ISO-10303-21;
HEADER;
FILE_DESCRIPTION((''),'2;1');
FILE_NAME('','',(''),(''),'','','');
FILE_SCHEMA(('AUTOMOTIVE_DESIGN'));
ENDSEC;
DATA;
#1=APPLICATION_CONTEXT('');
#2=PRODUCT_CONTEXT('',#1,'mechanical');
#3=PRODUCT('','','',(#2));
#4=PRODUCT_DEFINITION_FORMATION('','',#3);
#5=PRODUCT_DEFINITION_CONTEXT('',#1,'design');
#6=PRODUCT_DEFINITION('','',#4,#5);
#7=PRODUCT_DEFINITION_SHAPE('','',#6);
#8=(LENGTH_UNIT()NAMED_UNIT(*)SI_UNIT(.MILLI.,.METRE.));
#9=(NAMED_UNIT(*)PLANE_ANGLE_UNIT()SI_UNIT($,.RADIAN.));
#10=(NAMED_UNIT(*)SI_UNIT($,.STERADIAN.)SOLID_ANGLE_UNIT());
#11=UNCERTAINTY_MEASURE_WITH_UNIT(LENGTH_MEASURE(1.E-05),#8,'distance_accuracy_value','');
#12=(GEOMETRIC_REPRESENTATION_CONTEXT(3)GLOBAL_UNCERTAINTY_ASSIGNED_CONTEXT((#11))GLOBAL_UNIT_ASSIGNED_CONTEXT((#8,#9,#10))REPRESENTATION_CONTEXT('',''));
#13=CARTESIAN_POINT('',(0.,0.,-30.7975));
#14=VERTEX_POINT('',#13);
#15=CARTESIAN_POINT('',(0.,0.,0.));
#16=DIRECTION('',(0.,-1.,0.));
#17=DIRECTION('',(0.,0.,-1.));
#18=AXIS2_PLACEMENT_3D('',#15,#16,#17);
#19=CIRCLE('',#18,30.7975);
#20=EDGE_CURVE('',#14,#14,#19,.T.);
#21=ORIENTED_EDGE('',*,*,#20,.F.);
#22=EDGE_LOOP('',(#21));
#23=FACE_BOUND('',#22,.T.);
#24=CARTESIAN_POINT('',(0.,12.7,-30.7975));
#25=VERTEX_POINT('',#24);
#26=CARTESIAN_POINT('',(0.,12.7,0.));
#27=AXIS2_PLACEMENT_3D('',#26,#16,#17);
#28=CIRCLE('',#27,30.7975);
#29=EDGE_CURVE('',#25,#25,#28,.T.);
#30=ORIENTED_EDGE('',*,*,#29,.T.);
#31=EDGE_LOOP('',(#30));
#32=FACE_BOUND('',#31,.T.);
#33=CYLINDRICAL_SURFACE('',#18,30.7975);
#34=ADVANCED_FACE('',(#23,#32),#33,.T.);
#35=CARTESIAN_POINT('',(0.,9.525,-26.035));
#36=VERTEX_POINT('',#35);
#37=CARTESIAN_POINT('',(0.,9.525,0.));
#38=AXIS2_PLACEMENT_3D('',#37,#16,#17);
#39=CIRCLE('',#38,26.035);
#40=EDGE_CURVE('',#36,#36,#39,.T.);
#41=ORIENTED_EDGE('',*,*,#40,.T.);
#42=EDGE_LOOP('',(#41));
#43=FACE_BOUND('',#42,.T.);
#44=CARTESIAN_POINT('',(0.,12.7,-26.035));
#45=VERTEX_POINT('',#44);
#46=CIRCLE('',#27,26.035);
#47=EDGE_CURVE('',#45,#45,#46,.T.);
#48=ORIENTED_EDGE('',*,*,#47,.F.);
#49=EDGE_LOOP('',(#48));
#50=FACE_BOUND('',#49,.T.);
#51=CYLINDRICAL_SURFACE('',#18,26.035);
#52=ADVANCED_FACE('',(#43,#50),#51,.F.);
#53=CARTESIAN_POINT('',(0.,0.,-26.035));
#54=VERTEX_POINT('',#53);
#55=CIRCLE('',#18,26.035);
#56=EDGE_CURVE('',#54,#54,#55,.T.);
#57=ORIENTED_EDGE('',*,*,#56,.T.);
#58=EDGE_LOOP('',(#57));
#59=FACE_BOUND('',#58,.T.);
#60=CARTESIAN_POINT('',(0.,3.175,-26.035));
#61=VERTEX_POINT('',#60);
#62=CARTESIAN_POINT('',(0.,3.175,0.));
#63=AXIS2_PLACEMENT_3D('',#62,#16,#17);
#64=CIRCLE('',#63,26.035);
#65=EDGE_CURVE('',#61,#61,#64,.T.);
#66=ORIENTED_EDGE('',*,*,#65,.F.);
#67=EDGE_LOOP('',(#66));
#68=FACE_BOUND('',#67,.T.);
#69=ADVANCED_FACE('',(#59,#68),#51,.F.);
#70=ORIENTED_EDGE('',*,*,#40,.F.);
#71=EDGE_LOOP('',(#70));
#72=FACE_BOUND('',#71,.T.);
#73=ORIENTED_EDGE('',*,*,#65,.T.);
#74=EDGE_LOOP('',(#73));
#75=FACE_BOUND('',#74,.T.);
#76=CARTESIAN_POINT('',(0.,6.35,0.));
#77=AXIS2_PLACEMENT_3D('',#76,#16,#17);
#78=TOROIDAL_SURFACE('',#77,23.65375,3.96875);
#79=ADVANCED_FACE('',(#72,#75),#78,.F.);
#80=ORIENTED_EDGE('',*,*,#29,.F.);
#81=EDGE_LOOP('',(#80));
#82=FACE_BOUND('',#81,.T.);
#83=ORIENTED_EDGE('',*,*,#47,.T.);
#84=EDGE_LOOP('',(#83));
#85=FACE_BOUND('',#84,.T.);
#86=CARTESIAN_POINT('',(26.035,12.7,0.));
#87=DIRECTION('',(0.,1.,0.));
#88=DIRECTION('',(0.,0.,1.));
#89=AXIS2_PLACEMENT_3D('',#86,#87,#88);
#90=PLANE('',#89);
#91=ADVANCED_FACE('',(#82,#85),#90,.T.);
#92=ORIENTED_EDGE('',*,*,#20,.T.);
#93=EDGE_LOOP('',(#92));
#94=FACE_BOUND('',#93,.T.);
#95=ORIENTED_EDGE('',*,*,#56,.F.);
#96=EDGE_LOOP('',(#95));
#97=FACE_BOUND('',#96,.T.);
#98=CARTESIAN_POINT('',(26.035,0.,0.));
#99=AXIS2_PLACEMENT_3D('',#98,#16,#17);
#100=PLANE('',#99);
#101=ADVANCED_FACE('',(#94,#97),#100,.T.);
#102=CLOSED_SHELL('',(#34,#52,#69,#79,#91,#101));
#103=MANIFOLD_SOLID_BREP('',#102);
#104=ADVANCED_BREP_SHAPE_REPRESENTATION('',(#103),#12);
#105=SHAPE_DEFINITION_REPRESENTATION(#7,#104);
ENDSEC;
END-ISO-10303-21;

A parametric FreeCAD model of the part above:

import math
import FreeCAD as App
import Part
import Sketcher

V = App.Vector
Q = App.Units.Quantity

doc = App.newDocument("Part")
body = doc.addObject("PartDesign::Body", "Body")

# Sketch on XY plane
sketch1 = body.newObject("Sketcher::SketchObject", "Sketch")
sketch1.AttachmentSupport = (doc.getObject("XY_Plane"), [""])
sketch1.MapMode = "FlatFace"
sketch1.addGeometry(Part.LineSegment(V(26, 0, 0), V(30.8, 0, 0)), False)
sketch1.addGeometry(Part.LineSegment(V(30.8, 0, 0), V(30.8, 12.7, 0)), False)
sketch1.addGeometry(Part.LineSegment(V(30.8, 12.7, 0), V(26, 12.7, 0)), False)
sketch1.addGeometry(Part.LineSegment(V(26, 12.7, 0), V(26, 9.5, 0)), False)
sketch1.addGeometry(Part.ArcOfCircle(Part.Circle(V(23.7, 6.3, 0), V(0, 0, 1), 4), math.radians(-53), math.radians(53)), False)
sketch1.addGeometry(Part.LineSegment(V(26, 3.2, 0), V(26, 0, 0)), False)
sketch1.addConstraint(Sketcher.Constraint("Coincident", 0, 2, 1, 1))
sketch1.addConstraint(Sketcher.Constraint("Coincident", 1, 2, 2, 1))
sketch1.addConstraint(Sketcher.Constraint("Coincident", 2, 2, 3, 1))
sketch1.addConstraint(Sketcher.Constraint("Coincident", 3, 2, 4, 2))
sketch1.addConstraint(Sketcher.Constraint("Coincident", 4, 1, 5, 1))
sketch1.addConstraint(Sketcher.Constraint("Coincident", 5, 2, 0, 1))
sketch1.addConstraint(Sketcher.Constraint("Horizontal", 0))
sketch1.addConstraint(Sketcher.Constraint("Vertical", 1))
sketch1.addConstraint(Sketcher.Constraint("Horizontal", 2))
sketch1.addConstraint(Sketcher.Constraint("Vertical", 3))
sketch1.addConstraint(Sketcher.Constraint("Vertical", 5))
sketch1.addConstraint(Sketcher.Constraint("PointOnObject", 0, 2, -1))
sketch1.addConstraint(Sketcher.Constraint("Vertical", 3, 2, 4, 1))
sketch1.addConstraint(Sketcher.Constraint("Equal", 3, 5))
sketch1.addConstraint(Sketcher.Constraint("DistanceY", 1, 1, 1, 2, Q("0.5 in")))
sketch1.addConstraint(Sketcher.Constraint("Radius", 4, Q("0.15625 in")))
sketch1.addConstraint(Sketcher.Constraint("DistanceX", 0, 1, 0, 2, Q("0.1875 in")))
sketch1.addConstraint(Sketcher.Constraint("DistanceY", 3, 2, 3, 1, Q("0.125 in")))
sketch1.addConstraint(Sketcher.Constraint("DistanceX", -1, 1, 2, 2, Q("1.025 in")))
revolution = body.newObject("PartDesign::Revolution", "Revolution")
revolution.Profile = sketch1
revolution.ReferenceAxis = (sketch1, ["V_Axis"])
revolution.Angle = 360

doc.recompute()
